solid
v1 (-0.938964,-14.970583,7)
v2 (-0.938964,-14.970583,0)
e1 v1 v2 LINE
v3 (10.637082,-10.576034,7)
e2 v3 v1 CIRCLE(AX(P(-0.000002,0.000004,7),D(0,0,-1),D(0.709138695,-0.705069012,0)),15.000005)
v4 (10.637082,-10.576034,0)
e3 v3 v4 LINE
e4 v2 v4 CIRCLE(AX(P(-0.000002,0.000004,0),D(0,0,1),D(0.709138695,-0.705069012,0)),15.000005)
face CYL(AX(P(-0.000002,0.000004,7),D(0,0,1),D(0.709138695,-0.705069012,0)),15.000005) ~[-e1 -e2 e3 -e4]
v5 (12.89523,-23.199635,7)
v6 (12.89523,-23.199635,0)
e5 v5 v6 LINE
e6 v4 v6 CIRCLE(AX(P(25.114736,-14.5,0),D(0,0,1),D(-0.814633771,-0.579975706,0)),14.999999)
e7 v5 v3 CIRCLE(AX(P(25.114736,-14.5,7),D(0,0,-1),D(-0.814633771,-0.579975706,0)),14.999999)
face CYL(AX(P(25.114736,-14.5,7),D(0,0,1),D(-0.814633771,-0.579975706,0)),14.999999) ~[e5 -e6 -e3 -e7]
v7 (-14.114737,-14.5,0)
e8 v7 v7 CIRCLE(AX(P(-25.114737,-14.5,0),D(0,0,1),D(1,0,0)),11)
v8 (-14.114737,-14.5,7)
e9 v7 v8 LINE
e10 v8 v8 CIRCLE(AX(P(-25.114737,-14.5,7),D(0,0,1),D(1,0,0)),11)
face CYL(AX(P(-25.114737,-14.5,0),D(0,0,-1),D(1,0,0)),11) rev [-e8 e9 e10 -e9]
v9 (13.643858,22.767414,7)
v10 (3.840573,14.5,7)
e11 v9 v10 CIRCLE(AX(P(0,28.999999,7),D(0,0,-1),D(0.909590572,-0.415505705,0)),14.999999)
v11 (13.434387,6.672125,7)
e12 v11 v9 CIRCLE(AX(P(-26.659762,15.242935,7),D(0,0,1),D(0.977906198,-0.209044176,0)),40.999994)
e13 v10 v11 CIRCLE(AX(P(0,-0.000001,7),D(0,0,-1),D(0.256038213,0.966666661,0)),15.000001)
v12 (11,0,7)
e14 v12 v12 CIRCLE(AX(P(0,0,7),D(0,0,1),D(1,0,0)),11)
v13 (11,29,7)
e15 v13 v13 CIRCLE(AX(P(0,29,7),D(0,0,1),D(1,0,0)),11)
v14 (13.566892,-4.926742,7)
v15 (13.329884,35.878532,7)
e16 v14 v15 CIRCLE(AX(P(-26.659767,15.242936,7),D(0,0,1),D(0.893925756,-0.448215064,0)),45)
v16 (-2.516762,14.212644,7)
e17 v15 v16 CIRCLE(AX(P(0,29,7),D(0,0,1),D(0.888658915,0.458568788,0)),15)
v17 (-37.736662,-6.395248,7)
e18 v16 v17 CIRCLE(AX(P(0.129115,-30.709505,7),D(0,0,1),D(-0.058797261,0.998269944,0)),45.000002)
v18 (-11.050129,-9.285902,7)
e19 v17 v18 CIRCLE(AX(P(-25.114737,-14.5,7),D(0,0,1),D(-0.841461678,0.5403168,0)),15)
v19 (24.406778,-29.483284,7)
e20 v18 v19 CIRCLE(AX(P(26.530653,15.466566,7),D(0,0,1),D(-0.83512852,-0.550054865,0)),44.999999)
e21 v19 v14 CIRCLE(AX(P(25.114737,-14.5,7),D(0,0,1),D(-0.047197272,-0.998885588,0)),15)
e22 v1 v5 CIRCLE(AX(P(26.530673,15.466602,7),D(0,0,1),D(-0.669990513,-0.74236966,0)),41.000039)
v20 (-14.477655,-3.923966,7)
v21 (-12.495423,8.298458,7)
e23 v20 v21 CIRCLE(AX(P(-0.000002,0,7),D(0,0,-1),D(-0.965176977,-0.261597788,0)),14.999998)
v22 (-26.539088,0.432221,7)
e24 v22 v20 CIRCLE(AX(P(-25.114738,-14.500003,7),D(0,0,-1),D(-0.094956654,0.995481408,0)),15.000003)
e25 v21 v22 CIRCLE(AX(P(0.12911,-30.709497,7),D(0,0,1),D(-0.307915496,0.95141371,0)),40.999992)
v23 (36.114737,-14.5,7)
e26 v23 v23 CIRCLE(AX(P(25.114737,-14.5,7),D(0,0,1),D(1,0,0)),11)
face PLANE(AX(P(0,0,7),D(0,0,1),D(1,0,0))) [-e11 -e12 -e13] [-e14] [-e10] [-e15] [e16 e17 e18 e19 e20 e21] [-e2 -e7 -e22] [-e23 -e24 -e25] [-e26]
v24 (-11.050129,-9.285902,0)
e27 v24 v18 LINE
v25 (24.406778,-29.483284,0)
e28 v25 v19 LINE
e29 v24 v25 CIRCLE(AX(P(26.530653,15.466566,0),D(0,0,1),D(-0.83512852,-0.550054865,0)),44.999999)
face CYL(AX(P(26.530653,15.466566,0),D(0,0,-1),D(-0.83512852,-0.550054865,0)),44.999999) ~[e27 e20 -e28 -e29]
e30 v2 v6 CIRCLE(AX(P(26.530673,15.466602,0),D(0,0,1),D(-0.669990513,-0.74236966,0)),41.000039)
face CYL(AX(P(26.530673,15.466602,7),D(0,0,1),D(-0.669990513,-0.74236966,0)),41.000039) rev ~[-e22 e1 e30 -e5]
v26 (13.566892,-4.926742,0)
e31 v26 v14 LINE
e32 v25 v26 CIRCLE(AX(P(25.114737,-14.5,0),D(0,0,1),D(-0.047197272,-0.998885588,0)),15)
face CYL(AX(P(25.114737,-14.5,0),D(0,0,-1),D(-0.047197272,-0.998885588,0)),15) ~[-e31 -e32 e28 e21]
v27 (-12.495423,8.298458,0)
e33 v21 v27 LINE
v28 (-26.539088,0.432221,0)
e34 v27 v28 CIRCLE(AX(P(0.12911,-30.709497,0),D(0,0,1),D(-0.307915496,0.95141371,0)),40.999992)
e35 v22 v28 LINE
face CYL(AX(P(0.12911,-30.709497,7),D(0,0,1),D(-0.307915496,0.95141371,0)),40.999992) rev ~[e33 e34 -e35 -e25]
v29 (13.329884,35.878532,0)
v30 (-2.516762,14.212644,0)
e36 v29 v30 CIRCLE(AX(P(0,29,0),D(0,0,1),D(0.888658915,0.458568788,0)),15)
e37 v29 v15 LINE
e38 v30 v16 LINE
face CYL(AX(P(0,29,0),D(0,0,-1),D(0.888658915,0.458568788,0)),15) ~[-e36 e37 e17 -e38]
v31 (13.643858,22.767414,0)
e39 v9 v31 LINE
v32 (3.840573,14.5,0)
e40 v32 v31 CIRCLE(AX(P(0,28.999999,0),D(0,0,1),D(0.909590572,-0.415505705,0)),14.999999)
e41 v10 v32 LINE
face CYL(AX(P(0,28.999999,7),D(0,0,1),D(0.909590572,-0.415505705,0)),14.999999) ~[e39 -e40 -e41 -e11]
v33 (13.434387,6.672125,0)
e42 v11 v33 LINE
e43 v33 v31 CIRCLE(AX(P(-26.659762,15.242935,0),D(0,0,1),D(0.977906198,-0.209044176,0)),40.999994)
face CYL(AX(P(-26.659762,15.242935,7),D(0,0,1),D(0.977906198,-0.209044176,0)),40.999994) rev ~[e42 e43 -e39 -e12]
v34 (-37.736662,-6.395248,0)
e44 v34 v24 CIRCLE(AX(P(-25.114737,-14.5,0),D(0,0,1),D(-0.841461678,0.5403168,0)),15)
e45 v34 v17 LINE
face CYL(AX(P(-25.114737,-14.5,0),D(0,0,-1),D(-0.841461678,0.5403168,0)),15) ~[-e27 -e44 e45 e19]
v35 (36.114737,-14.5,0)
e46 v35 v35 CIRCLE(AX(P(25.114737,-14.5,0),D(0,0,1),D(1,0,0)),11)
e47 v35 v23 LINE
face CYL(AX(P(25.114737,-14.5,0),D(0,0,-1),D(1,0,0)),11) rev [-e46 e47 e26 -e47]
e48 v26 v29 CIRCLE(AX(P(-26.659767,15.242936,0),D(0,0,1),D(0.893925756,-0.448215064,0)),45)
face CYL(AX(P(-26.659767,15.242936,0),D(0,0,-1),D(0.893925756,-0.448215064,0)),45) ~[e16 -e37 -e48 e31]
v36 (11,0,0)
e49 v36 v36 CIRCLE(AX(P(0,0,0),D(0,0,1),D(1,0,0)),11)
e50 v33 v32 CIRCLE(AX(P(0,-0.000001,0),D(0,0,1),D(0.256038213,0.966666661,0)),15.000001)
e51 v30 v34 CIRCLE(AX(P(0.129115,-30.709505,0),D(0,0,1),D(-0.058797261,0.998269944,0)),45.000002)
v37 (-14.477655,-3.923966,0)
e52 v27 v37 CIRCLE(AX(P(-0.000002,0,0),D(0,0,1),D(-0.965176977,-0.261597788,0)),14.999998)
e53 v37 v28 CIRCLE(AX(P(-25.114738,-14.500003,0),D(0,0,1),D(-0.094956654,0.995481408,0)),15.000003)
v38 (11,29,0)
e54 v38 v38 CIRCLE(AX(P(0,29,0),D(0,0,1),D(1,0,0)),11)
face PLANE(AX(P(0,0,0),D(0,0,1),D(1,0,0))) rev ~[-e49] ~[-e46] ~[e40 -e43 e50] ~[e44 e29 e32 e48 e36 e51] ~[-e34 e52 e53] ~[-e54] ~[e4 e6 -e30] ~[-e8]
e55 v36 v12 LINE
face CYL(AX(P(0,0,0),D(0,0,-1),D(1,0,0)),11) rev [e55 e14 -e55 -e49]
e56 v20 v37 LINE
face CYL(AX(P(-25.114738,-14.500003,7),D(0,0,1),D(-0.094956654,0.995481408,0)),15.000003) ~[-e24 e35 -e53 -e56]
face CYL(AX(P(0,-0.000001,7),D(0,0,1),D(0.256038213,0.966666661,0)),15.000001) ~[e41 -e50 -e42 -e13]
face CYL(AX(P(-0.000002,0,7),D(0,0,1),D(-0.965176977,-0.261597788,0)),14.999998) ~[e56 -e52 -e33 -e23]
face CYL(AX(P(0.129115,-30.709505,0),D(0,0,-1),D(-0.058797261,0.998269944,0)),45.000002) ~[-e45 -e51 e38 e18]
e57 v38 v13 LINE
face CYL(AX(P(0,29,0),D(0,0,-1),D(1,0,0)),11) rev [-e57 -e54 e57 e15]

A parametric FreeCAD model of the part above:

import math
import FreeCAD as App
import Part
import Sketcher

V = App.Vector
Q = App.Units.Quantity

doc = App.newDocument("Part")
body = doc.addObject("PartDesign::Body", "Body")

sketch1 = body.newObject("Sketcher::SketchObject", "Sketch")
sketch1.AttachmentSupport = (doc.getObject("XY_Plane"), [""])
sketch1.MapMode = "FlatFace"
sketch1.addGeometry([
    Part.ArcOfCircle(Part.Circle(V(0, 29, 0), V(0, 0, 1), 15), math.radians(27.294793), math.radians(260.34099)),
    Part.ArcOfCircle(Part.Circle(V(0.129115, -30.709505, 0), V(0, 0, 1), 45.000002), math.radians(93.370779), math.radians(147.294792)),
    Part.ArcOfCircle(Part.Circle(V(-25.114737, -14.5, 0), V(0, 0, 1), 15), math.radians(147.294793), math.radians(380.34099)),
    Part.ArcOfCircle(Part.Circle(V(26.530653, 15.466566, 0), V(0, 0, 1), 44.999999), math.radians(-146.629223), math.radians(-92.705207)),
    Part.ArcOfCircle(Part.Circle(V(25.114737, -14.5, 0), V(0, 0, 1), 15), math.radians(-92.705209), math.radians(140.34099)),
    Part.ArcOfCircle(Part.Circle(V(-26.659767, 15.242936, 0), V(0, 0, 1), 45), math.radians(-26.629222), math.radians(27.294793)),
    Part.Circle(V(-25.114737, -14.5, 0), V(0, 0, 1), 11),
    Part.Circle(V(25.114737, -14.5, 0), V(0, 0, 1), 11),
    Part.Circle(V(0, 0, 0), V(0, 0, 1), 11),
    Part.Circle(V(0, 29, 0), V(0, 0, 1), 11),
], False)
sketch1.addConstraint([
    Sketcher.Constraint("Coincident", 0, 2, 1, 1),
    Sketcher.Constraint("Tangent", 1, 2, 2, 1),
    Sketcher.Constraint("Coincident", 2, 2, 3, 1),
    Sketcher.Constraint("Tangent", 3, 2, 4, 1),
    Sketcher.Constraint("Coincident", 4, 2, 5, 1),
    Sketcher.Constraint("Tangent", 5, 2, 0, 1),
    Sketcher.Constraint("Coincident", 8, 3, -1, 1),
    Sketcher.Constraint("Coincident", 6, 3, 2, 3),
    Sketcher.Constraint("Coincident", 7, 3, 4, 3),
    Sketcher.Constraint("Coincident", 9, 3, 0, 3),
    Sketcher.Constraint("Equal", 0, 2),
    Sketcher.Constraint("Equal", 2, 4),
    Sketcher.Constraint("Equal", 3, 5),
    Sketcher.Constraint("Equal", 6, 7),
    Sketcher.Constraint("Equal", 7, 8),
    Sketcher.Constraint("Equal", 8, 9),
    Sketcher.Constraint("Symmetric", 2, 3, 4, 3, -2),
    Sketcher.Constraint("PointOnObject", 0, 3, -2),
    Sketcher.Constraint("Diameter", 6, Q("22 mm")),
    Sketcher.Constraint("Radius", 0, Q("15 mm")),
    Sketcher.Constraint("Radius", 1, Q("45.000002 mm")),
    Sketcher.Constraint("Radius", 3, Q("44.999999 mm")),
    Sketcher.Constraint("DistanceY", -1, 1, 0, 3, Q("29 mm")),
    Sketcher.Constraint("DistanceY", 2, 3, -1, 1, Q("14.5 mm")),
    Sketcher.Constraint("DistanceX", 1, 2, 0, 2, Q("35.2199 mm")),
    Sketcher.Constraint("DistanceY", 2, 3, 2, 2, Q("5.214098 mm")),
    Sketcher.Constraint("DistanceX", 0, 2, -1, 1, Q("2.516762 mm")),
    Sketcher.Constraint("DistanceX", 5, 3, 2, 3, Q("1.545031 mm")),
])
pad1 = body.newObject("PartDesign::Pad", "Pad")
pad1.Profile = sketch1
pad1.Length = 7

sketch2 = body.newObject("Sketcher::SketchObject", "Sketch001")
sketch2.AttachmentSupport = (doc.getObject("XY_Plane"), [""])
sketch2.MapMode = "FlatFace"
sketch2.AttachmentOffset = App.Placement(V(0, 0, 7), App.Rotation())
sketch2.addGeometry([
    Part.ArcOfCircle(Part.Circle(V(0, 28.999999, 0), V(0, 0, 1), 14.999999), math.radians(-75.164887), math.radians(-24.551167)),
    Part.ArcOfCircle(Part.Circle(V(0, -0.000001, 0), V(0, 0, 1), 15.000001), math.radians(26.411079), math.radians(75.164887)),
    Part.ArcOfCircle(Part.Circle(V(-26.659762, 15.242935, 0), V(0, 0, 1), 40.999994), math.radians(-12.066344), math.radians(10.575085)),
    Part.ArcOfCircle(Part.Circle(V(-0.000002, 0, 0), V(0, 0, 1), 14.999998), math.radians(146.411071), math.radians(195.16489)),
    Part.ArcOfCircle(Part.Circle(V(0.12911, -30.709497, 0), V(0, 0, 1), 40.999992), math.radians(107.933653), math.radians(130.575084)),
    Part.ArcOfCircle(Part.Circle(V(-25.114738, -14.500003, 0), V(0, 0, 1), 15.000003), math.radians(44.835119), math.radians(95.448825)),
    Part.ArcOfCircle(Part.Circle(V(-0.000002, 0.000004, 0), V(0, 0, 1), 15.000005), math.radians(-93.588917), math.radians(-44.83512)),
    Part.ArcOfCircle(Part.Circle(V(26.530673, 15.466602, 0), V(0, 0, 1), 41.000039), math.radians(-132.066333), math.radians(-109.424927)),
    Part.ArcOfCircle(Part.Circle(V(25.114736, -14.5, 0), V(0, 0, 1), 14.999999), math.radians(164.835111), math.radians(215.448834)),
], False)
sketch2.addConstraint([
    Sketcher.Constraint("Coincident", 0, 1, 1, 2),
    Sketcher.Constraint("Coincident", 1, 1, 2, 1),
    Sketcher.Constraint("Coincident", 2, 2, 0, 2),
    Sketcher.Constraint("Coincident", 3, 1, 4, 1),
    Sketcher.Constraint("Coincident", 4, 2, 5, 2),
    Sketcher.Constraint("Coincident", 5, 1, 3, 2),
    Sketcher.Constraint("Coincident", 6, 1, 7, 1),
    Sketcher.Constraint("Coincident", 7, 2, 8, 2),
    Sketcher.Constraint("Coincident", 8, 1, 6, 2),
    Sketcher.Constraint("Coincident", 1, 3, -1, 1),
    Sketcher.Constraint("Coincident", 3, 3, -1, 1),
    Sketcher.Constraint("Coincident", 6, 3, -1, 1),
    Sketcher.Constraint("Equal", 0, 1),
    Sketcher.Constraint("Equal", 0, 3),
    Sketcher.Constraint("Equal", 2, 4),
    Sketcher.Constraint("Equal", 5, 6),
    Sketcher.Constraint("Equal", 3, 8),
    Sketcher.Constraint("Symmetric", 5, 3, 8, 3, -2),
    Sketcher.Constraint("PointOnObject", 0, 3, -2),
    Sketcher.Constraint("Radius", 0, Q("14.999999 mm")),
    Sketcher.Constraint("DistanceY", -1, 1, 0, 3, Q("28.999999 mm")),
    Sketcher.Constraint("DistanceY", 8, 3, -1, 1, Q("14.5 mm")),
    Sketcher.Constraint("Radius", 7, Q("41.000039 mm")),
    Sketcher.Constraint("Radius", 2, Q("40.999994 mm")),
    Sketcher.Constraint("Radius", 5, Q("15.000003 mm")),
    Sketcher.Constraint("DistanceY", -1, 1, 7, 3, Q("15.466602 mm")),
    Sketcher.Constraint("DistanceX", 0, 1, 7, 3, Q("22.6901 mm")),
    Sketcher.Constraint("DistanceY", 7, 2, 8, 1, Q("12.623601 mm")),
    Sketcher.Constraint("DistanceX", 2, 3, -1, 1, Q("26.659762 mm")),
    Sketcher.Constraint("DistanceX", -1, 1, 4, 3, Q("0.12911 mm")),
    Sketcher.Constraint("DistanceX", -1, 1, 2, 2, Q("13.643858 mm")),
    Sketcher.Constraint("DistanceX", 4, 2, -1, 1, Q("26.539088 mm")),
])
pocket1 = body.newObject("PartDesign::Pocket", "Pocket")
pocket1.Profile = sketch2
pocket1.Length = 25

doc.recompute()
